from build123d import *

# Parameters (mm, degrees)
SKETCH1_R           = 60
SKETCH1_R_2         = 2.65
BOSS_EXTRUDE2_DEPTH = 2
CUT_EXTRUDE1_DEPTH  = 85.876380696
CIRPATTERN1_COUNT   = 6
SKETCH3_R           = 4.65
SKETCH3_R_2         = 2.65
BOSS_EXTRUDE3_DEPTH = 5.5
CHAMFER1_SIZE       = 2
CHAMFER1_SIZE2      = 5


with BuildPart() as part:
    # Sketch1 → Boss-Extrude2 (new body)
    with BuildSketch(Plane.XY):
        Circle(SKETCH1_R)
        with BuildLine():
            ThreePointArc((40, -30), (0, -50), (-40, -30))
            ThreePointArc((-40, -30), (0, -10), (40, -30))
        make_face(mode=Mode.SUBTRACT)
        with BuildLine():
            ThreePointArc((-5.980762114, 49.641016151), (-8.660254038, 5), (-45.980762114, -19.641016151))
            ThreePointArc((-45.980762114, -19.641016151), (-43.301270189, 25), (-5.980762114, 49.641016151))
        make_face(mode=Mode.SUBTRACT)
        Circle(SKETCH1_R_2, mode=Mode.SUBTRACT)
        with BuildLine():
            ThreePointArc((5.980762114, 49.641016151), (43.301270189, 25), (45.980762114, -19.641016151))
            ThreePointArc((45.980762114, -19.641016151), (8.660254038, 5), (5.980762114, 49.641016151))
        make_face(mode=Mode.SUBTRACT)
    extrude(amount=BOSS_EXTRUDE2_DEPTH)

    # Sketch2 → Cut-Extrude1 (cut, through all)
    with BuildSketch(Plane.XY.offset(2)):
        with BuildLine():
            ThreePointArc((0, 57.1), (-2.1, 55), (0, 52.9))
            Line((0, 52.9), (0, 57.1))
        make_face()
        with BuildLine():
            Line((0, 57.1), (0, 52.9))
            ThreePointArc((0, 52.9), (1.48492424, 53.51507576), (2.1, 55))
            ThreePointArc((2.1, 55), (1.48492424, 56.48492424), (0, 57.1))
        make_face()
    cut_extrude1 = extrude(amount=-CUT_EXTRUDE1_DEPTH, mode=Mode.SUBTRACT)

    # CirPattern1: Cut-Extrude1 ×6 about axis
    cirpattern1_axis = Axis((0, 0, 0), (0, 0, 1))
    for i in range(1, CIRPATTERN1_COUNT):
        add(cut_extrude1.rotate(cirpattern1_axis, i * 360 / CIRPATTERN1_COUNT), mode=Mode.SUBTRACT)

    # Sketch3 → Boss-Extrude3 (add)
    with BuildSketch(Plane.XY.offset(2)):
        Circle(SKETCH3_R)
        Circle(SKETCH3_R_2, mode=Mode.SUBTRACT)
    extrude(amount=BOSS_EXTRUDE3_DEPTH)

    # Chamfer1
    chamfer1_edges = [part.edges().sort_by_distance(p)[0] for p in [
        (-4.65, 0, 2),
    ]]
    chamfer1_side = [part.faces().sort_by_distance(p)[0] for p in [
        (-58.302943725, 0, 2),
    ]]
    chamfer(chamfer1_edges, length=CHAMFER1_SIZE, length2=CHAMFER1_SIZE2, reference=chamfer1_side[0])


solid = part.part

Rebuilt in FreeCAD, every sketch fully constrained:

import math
import FreeCAD as App
import Part
import Sketcher
from FreeCAD import Vector


def edges_at(feature, points):
    """Names of the edges that pass closest to the given points."""
    edges = feature.Shape.Edges
    near = lambda p: min(range(len(edges)), key=lambda i: edges[i].distToShape(Part.Vertex(*p))[0])
    return sorted({f"Edge{near(p) + 1}" for p in points})

doc = App.newDocument("Part")
params = doc.addObject("Spreadsheet::Sheet", "Params")
for row, (alias, value) in enumerate([
    ("sketch1_diameter", "120 mm"),
    ("sketch1_radius", "50 mm"),
    ("sketch1_diameter2", "5.3 mm"),
    ("pad1_length", "2 mm"),
    ("sketch2_radius", "2.1 mm"),
    ("sketch3_diameter", "9.3 mm"),
    ("sketch3_diameter2", "5.3 mm"),
    ("pad2_length", "5.5 mm"),
    ("chamfer_size", "2 mm"),
    ("chamfer_size2", "5 mm"),
], start=1):
    params.set(f"A{row}", alias)
    params.set(f"B{row}", "=" + value)
    params.setAlias(f"B{row}", alias)

body = doc.addObject("PartDesign::Body", "Body")

# Sketch on XY plane
sketch1 = doc.addObject("Sketcher::SketchObject", "Sketch")
body.addObject(sketch1)
sketch1.AttachmentSupport = (doc.XY_Plane, [""])
sketch1.MapMode = "FlatFace"
sketch1.addGeometry(Part.Circle(Vector(0, 0, 0), Vector(0, 0, 1), 60), False)
sketch1.addGeometry(Part.ArcOfCircle(Part.Circle(Vector(0, -60, 0), Vector(0, 0, 1), 50), math.radians(37), math.radians(143)), False)
sketch1.addGeometry(Part.ArcOfCircle(Part.Circle(Vector(0, 0, 0), Vector(0, 0, 1), 50), math.radians(-143), math.radians(-37)), False)
sketch1.addGeometry(Part.ArcOfCircle(Part.Circle(Vector(0, 0, 0), Vector(0, 0, 1), 50), math.radians(97), math.radians(203)), False)
sketch1.addGeometry(Part.ArcOfCircle(Part.Circle(Vector(-52, 30, 0), Vector(0, 0, 1), 50), math.radians(-83), math.radians(23)), False)
sketch1.addGeometry(Part.Circle(Vector(0, 0, 0), Vector(0, 0, 1), 2.6), False)
sketch1.addGeometry(Part.ArcOfCircle(Part.Circle(Vector(52, 30, 0), Vector(0, 0, 1), 50), math.radians(157), math.radians(263)), False)
sketch1.addGeometry(Part.ArcOfCircle(Part.Circle(Vector(0, 0, 0), Vector(0, 0, 1), 50), math.radians(-23), math.radians(83)), False)
sketch1.addConstraint(Sketcher.Constraint("Coincident", 1, 1, 2, 2))
sketch1.addConstraint(Sketcher.Constraint("Coincident", 2, 1, 1, 2))
sketch1.addConstraint(Sketcher.Constraint("Coincident", 3, 1, 4, 2))
sketch1.addConstraint(Sketcher.Constraint("Coincident", 4, 1, 3, 2))
sketch1.addConstraint(Sketcher.Constraint("Coincident", 6, 1, 7, 2))
sketch1.addConstraint(Sketcher.Constraint("Coincident", 7, 1, 6, 2))
sketch1.addConstraint(Sketcher.Constraint("Coincident", 0, 3, -1, 1))
sketch1.addConstraint(Sketcher.Constraint("Coincident", 2, 3, -1, 1))
sketch1.addConstraint(Sketcher.Constraint("Coincident", 3, 3, -1, 1))
sketch1.addConstraint(Sketcher.Constraint("Coincident", 5, 3, -1, 1))
sketch1.addConstraint(Sketcher.Constraint("Coincident", 7, 3, -1, 1))
sketch1.addConstraint(Sketcher.Constraint("Equal", 1, 2))
sketch1.addConstraint(Sketcher.Constraint("Equal", 2, 3))
sketch1.addConstraint(Sketcher.Constraint("Equal", 3, 4))
sketch1.addConstraint(Sketcher.Constraint("Equal", 4, 6))
sketch1.addConstraint(Sketcher.Constraint("Equal", 6, 7))
sketch1.addConstraint(Sketcher.Constraint("Symmetric", 4, 3, 6, 3, -2))
sketch1.addConstraint(Sketcher.Constraint("PointOnObject", 1, 3, -2))
sketch1.addConstraint(Sketcher.Constraint("Diameter", 0, 120.0))
sketch1.addConstraint(Sketcher.Constraint("Radius", 1, 50.0))
sketch1.addConstraint(Sketcher.Constraint("Diameter", 5, 5.3))
sketch1.addConstraint(Sketcher.Constraint("DistanceY", 1, 3, -1, 1, 60.0))
sketch1.addConstraint(Sketcher.Constraint("DistanceY", -1, 1, 4, 3, 30.0))
sketch1.addConstraint(Sketcher.Constraint("DistanceX", 4, 3, 6, 3, 103.923048))
sketch1.setExpression("Constraints[18]", "Params.sketch1_diameter")
sketch1.setExpression("Constraints[19]", "Params.sketch1_radius")
sketch1.setExpression("Constraints[20]", "Params.sketch1_diameter2")
pad1 = doc.addObject("PartDesign::Pad", "Pad")
body.addObject(pad1)
pad1.Profile = sketch1
pad1.setExpression("Length", "Params.pad1_length")

# Sketch on XY plane
sketch2 = doc.addObject("Sketcher::SketchObject", "Sketch001")
body.addObject(sketch2)
sketch2.AttachmentSupport = (doc.XY_Plane, [""])
sketch2.MapMode = "FlatFace"
sketch2.AttachmentOffset = App.Placement(Vector(0, 0, 2), App.Rotation())
sketch2.addGeometry(Part.ArcOfCircle(Part.Circle(Vector(0, 55, 0), Vector(0, 0, 1), 2.1), math.radians(90), math.radians(270)), False)
sketch2.addGeometry(Part.ArcOfCircle(Part.Circle(Vector(0, 55, 0), Vector(0, 0, 1), 2.1), math.radians(-90), math.radians(0)), False)
sketch2.addGeometry(Part.ArcOfCircle(Part.Circle(Vector(0, 55, 0), Vector(0, 0, 1), 2.1), math.radians(0), math.radians(90)), False)
sketch2.addConstraint(Sketcher.Constraint("Tangent", 0, 2, 1, 1))
sketch2.addConstraint(Sketcher.Constraint("Tangent", 1, 2, 2, 1))
sketch2.addConstraint(Sketcher.Constraint("Tangent", 2, 2, 0, 1))
sketch2.addConstraint(Sketcher.Constraint("PointOnObject", 0, 3, -2))
sketch2.addConstraint(Sketcher.Constraint("PointOnObject", 0, 2, -2))
sketch2.addConstraint(Sketcher.Constraint("PointOnObject", 2, 2, -2))
sketch2.addConstraint(Sketcher.Constraint("Horizontal", 2, 3, 1, 2))
sketch2.addConstraint(Sketcher.Constraint("Radius", 0, 2.1))
sketch2.addConstraint(Sketcher.Constraint("DistanceY", -1, 1, 0, 3, 55.0))
sketch2.setExpression("Constraints[7]", "Params.sketch2_radius")
pocket1 = doc.addObject("PartDesign::Pocket", "Pocket")
body.addObject(pocket1)
pocket1.Profile = sketch2
pocket1.Type = "ThroughAll"
doc.recompute()

polarpattern = doc.addObject("PartDesign::PolarPattern", "PolarPattern")
body.addObject(polarpattern)
polarpattern.Originals = [pocket1]
polarpattern.Axis = (doc.Z_Axis, [""])
polarpattern.Angle = 360
polarpattern.Occurrences = 6
body.Tip = polarpattern

# Sketch on XY plane
sketch3 = doc.addObject("Sketcher::SketchObject", "Sketch002")
body.addObject(sketch3)
sketch3.AttachmentSupport = (doc.XY_Plane, [""])
sketch3.MapMode = "FlatFace"
sketch3.AttachmentOffset = App.Placement(Vector(0, 0, 2), App.Rotation())
sketch3.addGeometry(Part.Circle(Vector(0, 0, 0), Vector(0, 0, 1), 4.7), False)
sketch3.addGeometry(Part.Circle(Vector(0, 0, 0), Vector(0, 0, 1), 2.6), False)
sketch3.addConstraint(Sketcher.Constraint("Coincident", 0, 3, -1, 1))
sketch3.addConstraint(Sketcher.Constraint("Coincident", 1, 3, -1, 1))
sketch3.addConstraint(Sketcher.Constraint("Diameter", 0, 9.3))
sketch3.addConstraint(Sketcher.Constraint("Diameter", 1, 5.3))
sketch3.setExpression("Constraints[2]", "Params.sketch3_diameter")
sketch3.setExpression("Constraints[3]", "Params.sketch3_diameter2")
pad2 = doc.addObject("PartDesign::Pad", "Pad001")
body.addObject(pad2)
pad2.Profile = sketch3
pad2.setExpression("Length", "Params.pad2_length")
doc.recompute()

chamfer = doc.addObject("PartDesign::Chamfer", "Chamfer")
body.addObject(chamfer)
chamfer.Base = (pad2, edges_at(pad2, [(-4.65, 0, 2)]))
chamfer.ChamferType = "Two distances"
chamfer.setExpression("Size", "Params.chamfer_size")
chamfer.setExpression("Size2", "Params.chamfer_size2")

doc.recompute()
